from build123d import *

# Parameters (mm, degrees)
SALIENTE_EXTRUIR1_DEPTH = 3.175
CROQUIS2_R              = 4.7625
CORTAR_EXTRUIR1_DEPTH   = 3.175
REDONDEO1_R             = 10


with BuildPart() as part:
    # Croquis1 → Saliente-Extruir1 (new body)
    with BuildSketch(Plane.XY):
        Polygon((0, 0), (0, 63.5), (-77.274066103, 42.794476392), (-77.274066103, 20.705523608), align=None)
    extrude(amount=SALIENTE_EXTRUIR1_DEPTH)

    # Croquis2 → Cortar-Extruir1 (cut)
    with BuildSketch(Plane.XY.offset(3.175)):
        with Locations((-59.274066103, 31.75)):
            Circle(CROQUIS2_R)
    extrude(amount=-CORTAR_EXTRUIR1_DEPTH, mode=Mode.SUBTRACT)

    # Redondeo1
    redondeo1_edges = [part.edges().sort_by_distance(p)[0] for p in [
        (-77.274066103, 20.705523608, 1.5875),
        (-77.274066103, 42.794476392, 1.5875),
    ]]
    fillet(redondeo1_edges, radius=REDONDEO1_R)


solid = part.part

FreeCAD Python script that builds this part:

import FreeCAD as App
import Part
import Sketcher
from FreeCAD import Vector
Q = App.Units.Quantity


def edges_at(feature, points):
    """Names of the edges that pass closest to the given points."""
    edges = feature.Shape.Edges
    near = lambda p: min(range(len(edges)), key=lambda i: edges[i].distToShape(Part.Vertex(*p))[0])
    return sorted({f"Edge{near(p) + 1}" for p in points})

doc = App.newDocument("Part")
params = doc.addObject("Spreadsheet::Sheet", "Params")
for row, (alias, value) in enumerate([
    ("sketch1_height", "2.5 in"),
    ("pad1_length", "0.125 in"),
    ("sketch2_diameter", "0.375 in"),
    ("pocket1_length", "0.125 in"),
    ("fillet_radius", "10 mm"),
], start=1):
    params.set(f"A{row}", alias)
    params.set(f"B{row}", "=" + value)
    params.setAlias(f"B{row}", alias)

body = doc.addObject("PartDesign::Body", "Body")

sketch1 = body.newObject("Sketcher::SketchObject", "Sketch")
sketch1.AttachmentSupport = (doc.getObject("XY_Plane"), [""])
sketch1.MapMode = "FlatFace"
sketch1.addGeometry(Part.LineSegment(Vector(0, 0, 0), Vector(0, 64, 0)), False)
sketch1.addGeometry(Part.LineSegment(Vector(0, 64, 0), Vector(-77, 43, 0)), False)
sketch1.addGeometry(Part.LineSegment(Vector(-77, 43, 0), Vector(-77, 21, 0)), False)
sketch1.addGeometry(Part.LineSegment(Vector(-77, 21, 0), Vector(0, 0, 0)), False)
sketch1.addConstraint(Sketcher.Constraint("Coincident", 0, 2, 1, 1))
sketch1.addConstraint(Sketcher.Constraint("Coincident", 1, 2, 2, 1))
sketch1.addConstraint(Sketcher.Constraint("Coincident", 2, 2, 3, 1))
sketch1.addConstraint(Sketcher.Constraint("Coincident", 3, 2, 0, 1))
sketch1.addConstraint(Sketcher.Constraint("Vertical", 0))
sketch1.addConstraint(Sketcher.Constraint("Vertical", 2))
sketch1.addConstraint(Sketcher.Constraint("Coincident", 3, 2, -1, 1))
sketch1.addConstraint(Sketcher.Constraint("Equal", 1, 3))
sketch1.addConstraint(Sketcher.Constraint("DistanceY", 0, 1, 0, 2, Q("2.5 in")))
sketch1.addConstraint(Sketcher.Constraint("Angle", 1, Q("-165 deg")))
sketch1.addConstraint(Sketcher.Constraint("Distance", 1, Q("80 mm")))
sketch1.setExpression("Constraints[8]", "Params.sketch1_height")
pad1 = body.newObject("PartDesign::Pad", "Pad")
pad1.Profile = sketch1
pad1.setExpression("Length", "Params.pad1_length")

sketch2 = body.newObject("Sketcher::SketchObject", "Sketch001")
sketch2.AttachmentSupport = (doc.getObject("XY_Plane"), [""])
sketch2.MapMode = "FlatFace"
sketch2.AttachmentOffset = App.Placement(Vector(0, 0, 0.125 * 25.4), App.Rotation())
sketch2.addGeometry(Part.Circle(Vector(-59.3, 31.8, 0), Vector(0, 0, 1), 4.8), False)
sketch2.addConstraint(Sketcher.Constraint("Diameter", 0, Q("0.375 in")))
sketch2.addConstraint(Sketcher.Constraint("DistanceY", -1, 1, 0, 3, Q("1.25 in")))
sketch2.addConstraint(Sketcher.Constraint("DistanceX", 0, 3, -1, 1, Q("59.274066 mm")))
sketch2.setExpression("Constraints[0]", "Params.sketch2_diameter")
pocket1 = body.newObject("PartDesign::Pocket", "Pocket")
pocket1.Profile = sketch2
pocket1.setExpression("Length", "Params.pocket1_length")
doc.recompute()

fillet = body.newObject("PartDesign::Fillet", "Fillet")
fillet.Base = (pocket1, edges_at(pocket1, [(-77.274, 20.706, 1.587), (-77.274, 42.794, 1.587)]))
fillet.setExpression("Radius", "Params.fillet_radius")

doc.recompute()
